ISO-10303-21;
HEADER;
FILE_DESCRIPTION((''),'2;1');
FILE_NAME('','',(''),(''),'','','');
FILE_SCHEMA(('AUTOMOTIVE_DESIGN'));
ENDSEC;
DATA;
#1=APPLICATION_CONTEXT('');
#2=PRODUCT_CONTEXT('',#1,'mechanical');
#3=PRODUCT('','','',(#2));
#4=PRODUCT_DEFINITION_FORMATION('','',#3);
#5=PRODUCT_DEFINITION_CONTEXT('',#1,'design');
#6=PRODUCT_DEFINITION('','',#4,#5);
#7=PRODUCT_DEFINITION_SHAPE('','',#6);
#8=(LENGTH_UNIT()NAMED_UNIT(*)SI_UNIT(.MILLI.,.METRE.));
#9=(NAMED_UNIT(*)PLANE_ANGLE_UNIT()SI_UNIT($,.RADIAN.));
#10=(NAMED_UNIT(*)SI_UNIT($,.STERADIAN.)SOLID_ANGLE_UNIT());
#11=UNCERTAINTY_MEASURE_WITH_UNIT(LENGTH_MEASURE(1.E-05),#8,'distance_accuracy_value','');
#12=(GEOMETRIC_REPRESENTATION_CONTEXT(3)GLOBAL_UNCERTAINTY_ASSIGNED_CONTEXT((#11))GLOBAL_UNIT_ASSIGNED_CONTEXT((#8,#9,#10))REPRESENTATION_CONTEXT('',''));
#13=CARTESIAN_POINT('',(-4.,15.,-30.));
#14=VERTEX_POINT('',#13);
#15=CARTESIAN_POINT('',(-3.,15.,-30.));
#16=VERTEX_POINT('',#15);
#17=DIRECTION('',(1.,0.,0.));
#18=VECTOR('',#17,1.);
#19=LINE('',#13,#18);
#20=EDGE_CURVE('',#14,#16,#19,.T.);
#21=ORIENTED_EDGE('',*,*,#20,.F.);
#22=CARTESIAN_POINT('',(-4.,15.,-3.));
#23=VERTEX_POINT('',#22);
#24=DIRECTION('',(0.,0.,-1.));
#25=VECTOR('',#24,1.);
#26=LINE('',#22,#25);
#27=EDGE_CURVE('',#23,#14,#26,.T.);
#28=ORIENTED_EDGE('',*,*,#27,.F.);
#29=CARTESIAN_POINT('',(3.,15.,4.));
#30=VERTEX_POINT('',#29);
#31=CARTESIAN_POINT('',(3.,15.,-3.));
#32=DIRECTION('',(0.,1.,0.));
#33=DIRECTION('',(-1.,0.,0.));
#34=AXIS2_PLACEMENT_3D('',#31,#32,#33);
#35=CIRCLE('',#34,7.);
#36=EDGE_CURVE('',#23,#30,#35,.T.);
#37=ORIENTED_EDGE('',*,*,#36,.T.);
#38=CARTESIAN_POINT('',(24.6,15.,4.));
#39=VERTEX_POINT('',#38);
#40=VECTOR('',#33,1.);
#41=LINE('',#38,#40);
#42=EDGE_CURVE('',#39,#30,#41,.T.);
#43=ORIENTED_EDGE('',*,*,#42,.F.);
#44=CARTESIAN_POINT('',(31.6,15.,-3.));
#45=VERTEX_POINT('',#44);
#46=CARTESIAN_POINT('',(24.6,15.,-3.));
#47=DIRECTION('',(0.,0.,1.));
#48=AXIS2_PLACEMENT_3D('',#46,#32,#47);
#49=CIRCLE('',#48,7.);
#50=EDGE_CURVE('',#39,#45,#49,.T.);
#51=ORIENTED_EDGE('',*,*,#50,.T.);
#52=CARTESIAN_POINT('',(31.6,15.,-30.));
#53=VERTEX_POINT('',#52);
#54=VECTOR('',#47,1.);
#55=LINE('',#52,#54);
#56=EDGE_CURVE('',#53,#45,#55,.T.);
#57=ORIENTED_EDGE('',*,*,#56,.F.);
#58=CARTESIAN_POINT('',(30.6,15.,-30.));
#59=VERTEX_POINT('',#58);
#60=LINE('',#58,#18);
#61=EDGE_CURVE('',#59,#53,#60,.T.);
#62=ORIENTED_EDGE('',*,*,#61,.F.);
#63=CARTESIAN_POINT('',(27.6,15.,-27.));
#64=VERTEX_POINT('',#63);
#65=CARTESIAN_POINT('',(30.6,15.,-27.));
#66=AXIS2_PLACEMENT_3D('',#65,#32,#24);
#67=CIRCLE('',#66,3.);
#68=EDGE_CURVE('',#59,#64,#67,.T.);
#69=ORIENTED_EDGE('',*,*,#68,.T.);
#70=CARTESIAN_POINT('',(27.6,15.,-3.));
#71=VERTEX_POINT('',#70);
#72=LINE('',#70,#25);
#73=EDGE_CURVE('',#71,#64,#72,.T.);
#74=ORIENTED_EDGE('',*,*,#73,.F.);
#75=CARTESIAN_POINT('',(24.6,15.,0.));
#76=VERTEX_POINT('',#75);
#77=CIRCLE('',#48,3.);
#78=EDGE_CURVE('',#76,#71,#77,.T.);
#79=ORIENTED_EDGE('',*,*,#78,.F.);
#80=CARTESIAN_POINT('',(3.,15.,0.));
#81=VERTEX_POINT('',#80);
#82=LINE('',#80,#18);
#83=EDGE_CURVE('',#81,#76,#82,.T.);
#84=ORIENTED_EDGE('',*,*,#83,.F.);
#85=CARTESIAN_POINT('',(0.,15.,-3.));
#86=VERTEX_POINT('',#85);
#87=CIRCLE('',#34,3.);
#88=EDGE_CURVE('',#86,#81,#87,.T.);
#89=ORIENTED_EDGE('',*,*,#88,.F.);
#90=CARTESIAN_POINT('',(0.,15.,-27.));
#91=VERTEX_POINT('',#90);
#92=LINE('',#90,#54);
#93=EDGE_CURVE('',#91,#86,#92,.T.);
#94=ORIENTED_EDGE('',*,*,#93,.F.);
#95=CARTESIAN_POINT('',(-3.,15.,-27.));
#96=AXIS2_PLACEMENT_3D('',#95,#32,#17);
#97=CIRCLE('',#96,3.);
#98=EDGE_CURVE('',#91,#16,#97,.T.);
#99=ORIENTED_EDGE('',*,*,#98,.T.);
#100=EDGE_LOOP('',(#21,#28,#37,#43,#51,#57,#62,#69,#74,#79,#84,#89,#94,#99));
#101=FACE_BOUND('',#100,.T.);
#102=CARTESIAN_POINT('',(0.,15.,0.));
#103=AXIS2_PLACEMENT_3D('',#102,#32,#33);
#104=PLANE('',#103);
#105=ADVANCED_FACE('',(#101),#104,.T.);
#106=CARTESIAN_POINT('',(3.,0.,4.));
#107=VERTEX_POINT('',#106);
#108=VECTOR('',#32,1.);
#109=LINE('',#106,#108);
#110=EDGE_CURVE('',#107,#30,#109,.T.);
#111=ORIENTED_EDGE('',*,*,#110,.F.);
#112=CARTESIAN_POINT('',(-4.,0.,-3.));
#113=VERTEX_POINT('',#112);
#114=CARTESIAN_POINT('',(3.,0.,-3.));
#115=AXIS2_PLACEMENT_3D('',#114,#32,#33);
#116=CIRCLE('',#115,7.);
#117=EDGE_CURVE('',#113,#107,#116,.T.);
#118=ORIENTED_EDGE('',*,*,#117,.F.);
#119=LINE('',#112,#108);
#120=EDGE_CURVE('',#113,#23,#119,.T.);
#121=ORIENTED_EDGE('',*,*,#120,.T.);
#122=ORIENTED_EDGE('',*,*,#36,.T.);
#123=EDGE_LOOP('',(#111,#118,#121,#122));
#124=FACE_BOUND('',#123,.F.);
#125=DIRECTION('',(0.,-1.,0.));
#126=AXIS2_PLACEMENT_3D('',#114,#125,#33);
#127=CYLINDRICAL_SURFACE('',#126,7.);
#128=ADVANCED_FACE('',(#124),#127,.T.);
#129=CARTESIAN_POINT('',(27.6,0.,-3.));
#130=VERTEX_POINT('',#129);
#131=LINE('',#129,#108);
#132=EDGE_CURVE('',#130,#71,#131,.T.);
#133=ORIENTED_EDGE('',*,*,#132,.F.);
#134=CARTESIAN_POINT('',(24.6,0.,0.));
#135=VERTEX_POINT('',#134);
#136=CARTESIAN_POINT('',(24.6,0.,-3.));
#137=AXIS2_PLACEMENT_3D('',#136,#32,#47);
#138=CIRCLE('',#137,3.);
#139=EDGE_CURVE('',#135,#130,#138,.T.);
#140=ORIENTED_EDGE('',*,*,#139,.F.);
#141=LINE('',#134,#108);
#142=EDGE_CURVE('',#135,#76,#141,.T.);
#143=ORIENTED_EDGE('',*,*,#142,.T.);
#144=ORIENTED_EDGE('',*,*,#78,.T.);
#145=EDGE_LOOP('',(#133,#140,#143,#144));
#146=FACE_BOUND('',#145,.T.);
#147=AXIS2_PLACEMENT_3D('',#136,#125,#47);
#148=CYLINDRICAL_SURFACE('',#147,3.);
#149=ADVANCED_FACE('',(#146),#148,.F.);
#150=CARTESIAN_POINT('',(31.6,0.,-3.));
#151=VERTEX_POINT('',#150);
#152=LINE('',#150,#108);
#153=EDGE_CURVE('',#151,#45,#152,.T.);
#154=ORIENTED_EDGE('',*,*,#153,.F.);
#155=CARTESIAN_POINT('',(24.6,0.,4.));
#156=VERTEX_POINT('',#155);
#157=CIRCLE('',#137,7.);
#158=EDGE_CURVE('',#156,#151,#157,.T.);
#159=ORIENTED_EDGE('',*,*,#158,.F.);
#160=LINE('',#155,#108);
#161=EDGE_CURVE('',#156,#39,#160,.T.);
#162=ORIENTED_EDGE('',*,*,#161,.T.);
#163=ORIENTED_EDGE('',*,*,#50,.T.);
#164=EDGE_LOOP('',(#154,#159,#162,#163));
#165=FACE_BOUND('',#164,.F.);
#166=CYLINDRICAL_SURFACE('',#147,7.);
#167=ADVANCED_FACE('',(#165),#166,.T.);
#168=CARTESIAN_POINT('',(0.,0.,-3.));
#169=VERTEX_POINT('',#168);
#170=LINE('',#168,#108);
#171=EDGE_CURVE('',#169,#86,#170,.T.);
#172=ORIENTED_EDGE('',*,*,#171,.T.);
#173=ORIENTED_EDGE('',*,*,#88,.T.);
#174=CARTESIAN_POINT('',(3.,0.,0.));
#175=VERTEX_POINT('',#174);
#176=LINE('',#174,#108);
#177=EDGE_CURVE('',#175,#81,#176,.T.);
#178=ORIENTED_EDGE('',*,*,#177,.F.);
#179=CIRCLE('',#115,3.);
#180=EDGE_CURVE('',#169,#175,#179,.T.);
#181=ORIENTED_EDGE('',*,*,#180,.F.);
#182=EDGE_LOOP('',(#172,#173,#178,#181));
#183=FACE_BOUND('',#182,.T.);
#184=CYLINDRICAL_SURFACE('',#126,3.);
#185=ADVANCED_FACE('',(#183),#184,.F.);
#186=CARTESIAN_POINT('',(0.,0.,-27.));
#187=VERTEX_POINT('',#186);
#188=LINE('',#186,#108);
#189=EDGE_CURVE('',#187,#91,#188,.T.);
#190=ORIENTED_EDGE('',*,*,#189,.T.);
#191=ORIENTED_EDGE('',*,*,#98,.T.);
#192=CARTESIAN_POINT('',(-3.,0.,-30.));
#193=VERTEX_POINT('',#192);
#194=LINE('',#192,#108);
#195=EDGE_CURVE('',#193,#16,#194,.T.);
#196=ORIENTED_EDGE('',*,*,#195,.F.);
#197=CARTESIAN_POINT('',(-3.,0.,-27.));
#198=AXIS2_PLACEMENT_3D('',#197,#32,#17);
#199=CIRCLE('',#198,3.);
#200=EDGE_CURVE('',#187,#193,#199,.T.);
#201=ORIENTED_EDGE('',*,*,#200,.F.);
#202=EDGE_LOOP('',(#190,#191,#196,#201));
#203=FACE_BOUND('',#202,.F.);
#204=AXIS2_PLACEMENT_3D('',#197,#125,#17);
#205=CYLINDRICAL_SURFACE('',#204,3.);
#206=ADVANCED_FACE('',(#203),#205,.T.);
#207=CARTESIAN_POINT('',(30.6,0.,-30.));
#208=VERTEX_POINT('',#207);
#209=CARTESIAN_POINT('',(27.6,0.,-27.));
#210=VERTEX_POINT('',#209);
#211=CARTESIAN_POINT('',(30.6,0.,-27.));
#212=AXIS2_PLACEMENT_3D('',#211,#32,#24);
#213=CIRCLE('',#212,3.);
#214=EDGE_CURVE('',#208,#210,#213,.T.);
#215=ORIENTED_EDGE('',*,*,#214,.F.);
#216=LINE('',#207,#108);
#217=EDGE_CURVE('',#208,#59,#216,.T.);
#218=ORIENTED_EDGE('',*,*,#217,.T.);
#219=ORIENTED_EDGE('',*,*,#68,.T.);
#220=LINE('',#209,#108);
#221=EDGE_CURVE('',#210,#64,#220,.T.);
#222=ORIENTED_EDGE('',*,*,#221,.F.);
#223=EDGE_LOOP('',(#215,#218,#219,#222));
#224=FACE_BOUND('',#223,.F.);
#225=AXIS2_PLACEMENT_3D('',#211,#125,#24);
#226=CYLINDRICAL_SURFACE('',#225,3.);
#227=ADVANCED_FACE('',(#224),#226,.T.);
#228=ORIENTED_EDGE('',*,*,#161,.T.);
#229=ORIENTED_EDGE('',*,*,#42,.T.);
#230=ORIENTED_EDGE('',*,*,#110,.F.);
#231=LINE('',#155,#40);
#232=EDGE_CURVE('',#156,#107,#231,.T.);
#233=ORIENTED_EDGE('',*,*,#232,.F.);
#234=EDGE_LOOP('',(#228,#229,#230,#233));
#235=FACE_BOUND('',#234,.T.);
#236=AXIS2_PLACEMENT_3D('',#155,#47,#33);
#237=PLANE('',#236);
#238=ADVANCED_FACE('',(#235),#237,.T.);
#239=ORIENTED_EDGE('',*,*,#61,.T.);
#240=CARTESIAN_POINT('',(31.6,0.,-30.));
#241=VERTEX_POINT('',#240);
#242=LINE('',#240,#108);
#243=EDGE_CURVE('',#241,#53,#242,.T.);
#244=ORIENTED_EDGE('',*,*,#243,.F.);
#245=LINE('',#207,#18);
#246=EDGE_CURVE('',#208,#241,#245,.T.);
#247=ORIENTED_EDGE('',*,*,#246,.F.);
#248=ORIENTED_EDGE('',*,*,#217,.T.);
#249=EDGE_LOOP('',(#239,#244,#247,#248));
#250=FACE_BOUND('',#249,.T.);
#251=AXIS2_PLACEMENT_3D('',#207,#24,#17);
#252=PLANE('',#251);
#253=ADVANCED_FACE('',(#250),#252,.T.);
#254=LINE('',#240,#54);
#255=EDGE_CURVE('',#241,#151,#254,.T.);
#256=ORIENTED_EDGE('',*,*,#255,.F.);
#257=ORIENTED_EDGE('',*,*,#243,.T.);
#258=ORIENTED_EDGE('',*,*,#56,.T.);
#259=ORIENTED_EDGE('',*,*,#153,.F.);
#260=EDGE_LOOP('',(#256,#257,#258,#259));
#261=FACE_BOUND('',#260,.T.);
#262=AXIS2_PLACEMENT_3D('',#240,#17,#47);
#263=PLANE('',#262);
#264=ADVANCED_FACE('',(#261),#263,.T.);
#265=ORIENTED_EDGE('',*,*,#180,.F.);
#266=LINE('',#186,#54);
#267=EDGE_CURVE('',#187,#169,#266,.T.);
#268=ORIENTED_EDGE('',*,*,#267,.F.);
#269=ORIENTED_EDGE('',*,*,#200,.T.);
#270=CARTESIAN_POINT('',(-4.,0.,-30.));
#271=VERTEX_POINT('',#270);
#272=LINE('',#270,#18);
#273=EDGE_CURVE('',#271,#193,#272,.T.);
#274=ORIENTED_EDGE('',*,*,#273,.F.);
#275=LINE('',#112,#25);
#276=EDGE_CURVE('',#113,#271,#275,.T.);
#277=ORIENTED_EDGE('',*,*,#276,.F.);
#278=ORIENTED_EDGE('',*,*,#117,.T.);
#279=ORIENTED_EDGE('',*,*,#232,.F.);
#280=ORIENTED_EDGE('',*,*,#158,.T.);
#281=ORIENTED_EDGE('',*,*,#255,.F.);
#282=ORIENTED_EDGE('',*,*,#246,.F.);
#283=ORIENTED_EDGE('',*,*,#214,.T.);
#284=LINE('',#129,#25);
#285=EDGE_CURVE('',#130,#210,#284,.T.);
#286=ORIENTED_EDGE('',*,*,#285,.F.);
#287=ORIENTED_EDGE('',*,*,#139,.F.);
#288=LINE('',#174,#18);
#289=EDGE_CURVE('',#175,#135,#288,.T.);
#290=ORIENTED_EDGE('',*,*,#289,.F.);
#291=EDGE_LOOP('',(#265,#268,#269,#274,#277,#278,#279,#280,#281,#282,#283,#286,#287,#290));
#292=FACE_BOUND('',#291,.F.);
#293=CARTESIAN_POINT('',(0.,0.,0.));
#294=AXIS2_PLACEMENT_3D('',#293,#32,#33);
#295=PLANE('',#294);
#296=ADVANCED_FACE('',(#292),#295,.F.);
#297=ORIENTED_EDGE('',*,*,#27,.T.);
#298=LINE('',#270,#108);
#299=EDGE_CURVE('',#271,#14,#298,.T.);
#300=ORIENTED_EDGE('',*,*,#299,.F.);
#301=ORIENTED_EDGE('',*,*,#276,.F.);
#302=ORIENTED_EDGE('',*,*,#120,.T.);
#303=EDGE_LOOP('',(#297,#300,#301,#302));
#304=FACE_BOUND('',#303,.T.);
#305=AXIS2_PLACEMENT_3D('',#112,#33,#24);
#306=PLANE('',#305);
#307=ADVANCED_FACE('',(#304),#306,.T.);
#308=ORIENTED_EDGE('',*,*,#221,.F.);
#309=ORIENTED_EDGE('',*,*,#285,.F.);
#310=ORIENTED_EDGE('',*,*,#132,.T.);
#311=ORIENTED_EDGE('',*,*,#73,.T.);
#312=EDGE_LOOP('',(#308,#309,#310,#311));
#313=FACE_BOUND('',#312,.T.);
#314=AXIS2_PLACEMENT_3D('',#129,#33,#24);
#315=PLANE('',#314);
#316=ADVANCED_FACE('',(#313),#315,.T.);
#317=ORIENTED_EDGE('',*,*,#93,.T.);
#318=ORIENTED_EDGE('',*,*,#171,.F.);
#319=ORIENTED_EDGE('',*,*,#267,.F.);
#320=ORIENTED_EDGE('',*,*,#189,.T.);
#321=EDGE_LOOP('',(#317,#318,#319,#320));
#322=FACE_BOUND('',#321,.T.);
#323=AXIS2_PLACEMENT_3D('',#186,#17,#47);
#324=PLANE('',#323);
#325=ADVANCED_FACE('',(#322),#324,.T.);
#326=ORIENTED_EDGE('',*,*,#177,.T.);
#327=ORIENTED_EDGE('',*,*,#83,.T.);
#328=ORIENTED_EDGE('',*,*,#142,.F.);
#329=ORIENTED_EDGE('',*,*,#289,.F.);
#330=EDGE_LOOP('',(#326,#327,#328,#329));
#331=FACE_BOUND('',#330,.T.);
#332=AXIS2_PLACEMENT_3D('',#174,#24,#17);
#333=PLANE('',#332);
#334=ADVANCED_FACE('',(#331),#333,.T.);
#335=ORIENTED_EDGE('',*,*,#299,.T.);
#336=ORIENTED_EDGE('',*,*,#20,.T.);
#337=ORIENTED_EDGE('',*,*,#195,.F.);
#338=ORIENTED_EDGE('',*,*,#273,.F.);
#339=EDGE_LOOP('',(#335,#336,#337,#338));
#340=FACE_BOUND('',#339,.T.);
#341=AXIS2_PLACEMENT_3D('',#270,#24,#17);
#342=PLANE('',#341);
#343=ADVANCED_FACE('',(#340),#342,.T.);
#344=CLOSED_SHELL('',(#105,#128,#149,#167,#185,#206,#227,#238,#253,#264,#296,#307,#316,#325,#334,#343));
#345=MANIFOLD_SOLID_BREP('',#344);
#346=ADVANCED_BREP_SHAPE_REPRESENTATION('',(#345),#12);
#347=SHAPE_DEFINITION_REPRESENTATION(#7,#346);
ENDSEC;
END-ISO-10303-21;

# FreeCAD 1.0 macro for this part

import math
import FreeCAD as App
import Part
import Sketcher

doc = App.newDocument("Part")
body = doc.addObject("PartDesign::Body", "Body")

# Sketch on XZ plane
sketch1 = body.newObject("Sketcher::SketchObject", "Sketch")
sketch1.AttachmentSupport = (doc.getObject("XZ_Plane"), [""])
sketch1.MapMode = "FlatFace"
sketch1.addGeometry([
    Part.LineSegment(App.Vector(24.6, 0, 0), App.Vector(3, 0, 0)),  # 0
    Part.ArcOfCircle(Part.Circle(App.Vector(3, -3, 0), App.Vector(0, 0, 1), 3), math.radians(90), math.radians(180)),  # 1
    Part.LineSegment(App.Vector(0, -3, 0), App.Vector(0, -27, 0)),  # 2
    Part.ArcOfCircle(Part.Circle(App.Vector(-3, -27, 0), App.Vector(0, 0, 1), 3), math.radians(-90), math.radians(0)),  # 3
    Part.LineSegment(App.Vector(-3, -30, 0), App.Vector(-4, -30, 0)),  # 4
    Part.LineSegment(App.Vector(-4, -30, 0), App.Vector(-4, -3, 0)),  # 5
    Part.ArcOfCircle(Part.Circle(App.Vector(3, -3, 0), App.Vector(0, 0, 1), 7), math.radians(90), math.radians(180)),  # 6
    Part.LineSegment(App.Vector(3, 4, 0), App.Vector(24.6, 4, 0)),  # 7
    Part.ArcOfCircle(Part.Circle(App.Vector(24.6, -3, 0), App.Vector(0, 0, 1), 7), math.radians(0), math.radians(90)),  # 8
    Part.LineSegment(App.Vector(31.6, -3, 0), App.Vector(31.6, -30, 0)),  # 9
    Part.LineSegment(App.Vector(31.6, -30, 0), App.Vector(30.6, -30, 0)),  # 10
    Part.ArcOfCircle(Part.Circle(App.Vector(30.6, -27, 0), App.Vector(0, 0, 1), 3), math.radians(180), math.radians(270)),  # 11
    Part.LineSegment(App.Vector(27.6, -27, 0), App.Vector(27.6, -3, 0)),  # 12
    Part.ArcOfCircle(Part.Circle(App.Vector(24.6, -3, 0), App.Vector(0, 0, 1), 3), math.radians(0), math.radians(90)),  # 13
], False)
sketch1.addConstraint([
    Sketcher.Constraint("Tangent", 0, 2, 1, 1),
    Sketcher.Constraint("Tangent", 1, 2, 2, 1),
    Sketcher.Constraint("Tangent", 2, 2, 3, 2),
    Sketcher.Constraint("Tangent", 3, 1, 4, 1),
    Sketcher.Constraint("Coincident", 4, 2, 5, 1),
    Sketcher.Constraint("Tangent", 5, 2, 6, 2),
    Sketcher.Constraint("Tangent", 6, 1, 7, 1),
    Sketcher.Constraint("Tangent", 7, 2, 8, 2),
    Sketcher.Constraint("Tangent", 8, 1, 9, 1),
    Sketcher.Constraint("Coincident", 9, 2, 10, 1),
    Sketcher.Constraint("Tangent", 10, 2, 11, 2),
    Sketcher.Constraint("Tangent", 11, 1, 12, 1),
    Sketcher.Constraint("Tangent", 12, 2, 13, 1),
    Sketcher.Constraint("Tangent", 13, 2, 0, 1),
    Sketcher.Constraint("Horizontal", 0),
    Sketcher.Constraint("Vertical", 2),
    Sketcher.Constraint("Horizontal", 4),
    Sketcher.Constraint("Vertical", 5),
    Sketcher.Constraint("Horizontal", 7),
    Sketcher.Constraint("Vertical", 9),
    Sketcher.Constraint("Horizontal", 10),
    Sketcher.Constraint("Vertical", 12),
    Sketcher.Constraint("Coincident", 6, 3, 1, 3),
    Sketcher.Constraint("Coincident", 13, 3, 8, 3),
    Sketcher.Constraint("Equal", 1, 3),
    Sketcher.Constraint("Equal", 6, 8),
    Sketcher.Constraint("Equal", 3, 11),
    Sketcher.Constraint("PointOnObject", 0, 2, -1),
    Sketcher.Constraint("PointOnObject", 1, 2, -2),
    Sketcher.Constraint("Horizontal", 3, 3, 11, 3),
    Sketcher.Constraint("Radius", 1, 3.0),
    Sketcher.Constraint("Radius", 6, 7.0),
    Sketcher.Constraint("DistanceY", 3, 1, -1, 1, 30.0),
    Sketcher.Constraint("DistanceX", -1, 1, 11, 1, 27.6),
])
pad1 = body.newObject("PartDesign::Pad", "Pad")
pad1.Profile = sketch1
pad1.Length = 15
pad1.Reversed = True

doc.recompute()
